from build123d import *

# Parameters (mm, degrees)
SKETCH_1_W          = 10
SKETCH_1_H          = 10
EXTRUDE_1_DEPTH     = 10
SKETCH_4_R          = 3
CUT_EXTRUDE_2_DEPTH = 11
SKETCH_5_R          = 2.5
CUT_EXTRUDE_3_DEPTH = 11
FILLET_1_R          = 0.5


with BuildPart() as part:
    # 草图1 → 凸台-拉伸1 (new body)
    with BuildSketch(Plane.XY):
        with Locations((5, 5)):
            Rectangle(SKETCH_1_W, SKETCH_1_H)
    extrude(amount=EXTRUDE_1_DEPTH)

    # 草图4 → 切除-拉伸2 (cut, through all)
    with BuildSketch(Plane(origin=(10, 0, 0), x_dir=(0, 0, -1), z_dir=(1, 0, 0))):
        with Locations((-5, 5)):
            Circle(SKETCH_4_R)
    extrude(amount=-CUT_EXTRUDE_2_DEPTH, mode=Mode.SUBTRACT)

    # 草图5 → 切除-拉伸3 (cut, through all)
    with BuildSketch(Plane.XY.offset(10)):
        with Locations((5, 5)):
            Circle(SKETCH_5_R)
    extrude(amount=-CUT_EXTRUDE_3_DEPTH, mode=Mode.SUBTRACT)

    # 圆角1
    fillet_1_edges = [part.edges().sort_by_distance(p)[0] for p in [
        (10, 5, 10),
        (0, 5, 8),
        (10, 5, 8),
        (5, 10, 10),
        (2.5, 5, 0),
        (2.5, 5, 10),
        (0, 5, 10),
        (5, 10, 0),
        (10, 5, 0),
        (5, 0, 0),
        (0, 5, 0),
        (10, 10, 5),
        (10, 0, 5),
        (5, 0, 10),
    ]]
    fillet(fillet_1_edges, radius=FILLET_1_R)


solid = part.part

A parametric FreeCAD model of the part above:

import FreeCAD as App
import Part
import Sketcher
from FreeCAD import Vector
Q = App.Units.Quantity


def edges_at(feature, points):
    """Names of the edges that pass closest to the given points."""
    edges = feature.Shape.Edges
    near = lambda p: min(range(len(edges)), key=lambda i: edges[i].distToShape(Part.Vertex(*p))[0])
    return sorted({f"Edge{near(p) + 1}" for p in points})


def add_polygon(sketch, points):
    """Adds a closed chain of lines whose ends are joined by coincident constraints."""
    first, n = sketch.GeometryCount, len(points)
    for a, b in zip(points, points[1:] + points[:1]):
        sketch.addGeometry(Part.LineSegment(App.Vector(*a, 0), App.Vector(*b, 0)), False)
    for i in range(n):
        sketch.addConstraint(Sketcher.Constraint("Coincident", first + i, 2, first + (i + 1) % n, 1))

doc = App.newDocument("Part")
body = doc.addObject("PartDesign::Body", "Body")

# Sketch on XY plane
sketch1 = body.newObject("Sketcher::SketchObject", "Sketch")
sketch1.AttachmentSupport = (doc.getObject("XY_Plane"), [""])
sketch1.MapMode = "FlatFace"
add_polygon(sketch1, [(0, 10), (0, 0), (10, 0), (10, 10)])  # lines 0-3
sketch1.addConstraint(Sketcher.Constraint("Vertical", 0))
sketch1.addConstraint(Sketcher.Constraint("Horizontal", 1))
sketch1.addConstraint(Sketcher.Constraint("Vertical", 2))
sketch1.addConstraint(Sketcher.Constraint("Horizontal", 3))
sketch1.addConstraint(Sketcher.Constraint("Coincident", 0, 2, -1, 1))
sketch1.addConstraint(Sketcher.Constraint("Equal", 3, 0))
sketch1.addConstraint(Sketcher.Constraint("DistanceX", 1, 1, 1, 2, Q("10 mm")))
pad1 = body.newObject("PartDesign::Pad", "Pad")
pad1.Profile = sketch1
pad1.Length = 10

# Sketch on YZ plane
sketch2 = body.newObject("Sketcher::SketchObject", "Sketch001")
sketch2.AttachmentSupport = (doc.getObject("YZ_Plane"), [""])
sketch2.MapMode = "FlatFace"
sketch2.AttachmentOffset = App.Placement(Vector(0, 0, 10), App.Rotation())
sketch2.addGeometry(Part.Circle(Vector(5, 5, 0), Vector(0, 0, 1), 3), False)
sketch2.addConstraint(Sketcher.Constraint("Diameter", 0, Q("6 mm")))
sketch2.addConstraint(Sketcher.Constraint("DistanceX", -1, 1, 0, 3, Q("5 mm")))
sketch2.addConstraint(Sketcher.Constraint("DistanceY", -1, 1, 0, 3, Q("5 mm")))
pocket1 = body.newObject("PartDesign::Pocket", "Pocket")
pocket1.Profile = sketch2
pocket1.Type = "ThroughAll"

# Sketch on XY plane
sketch3 = body.newObject("Sketcher::SketchObject", "Sketch002")
sketch3.AttachmentSupport = (doc.getObject("XY_Plane"), [""])
sketch3.MapMode = "FlatFace"
sketch3.AttachmentOffset = App.Placement(Vector(0, 0, 10), App.Rotation())
sketch3.addGeometry(Part.Circle(Vector(5, 5, 0), Vector(0, 0, 1), 2.5), False)
sketch3.addConstraint(Sketcher.Constraint("Diameter", 0, Q("5 mm")))
sketch3.addConstraint(Sketcher.Constraint("DistanceX", -1, 1, 0, 3, Q("5 mm")))
sketch3.addConstraint(Sketcher.Constraint("DistanceY", -1, 1, 0, 3, Q("5 mm")))
pocket2 = body.newObject("PartDesign::Pocket", "Pocket001")
pocket2.Profile = sketch3
pocket2.Type = "ThroughAll"
doc.recompute()

fillet = body.newObject("PartDesign::Fillet", "Fillet")
fillet.Base = (pocket2, edges_at(pocket2, [
    (10, 5, 10),
    (0, 5, 8),
    (10, 5, 8),
    (5, 10, 10),
    (2.5, 5, 0),
    (2.5, 5, 10),
    (0, 5, 10),
    (5, 10, 0),
    (10, 5, 0),
    (5, 0, 0),
    (0, 5, 0),
    (10, 10, 5),
    (10, 0, 5),
    (5, 0, 10),
]))
fillet.Radius = 0.5

doc.recompute()
